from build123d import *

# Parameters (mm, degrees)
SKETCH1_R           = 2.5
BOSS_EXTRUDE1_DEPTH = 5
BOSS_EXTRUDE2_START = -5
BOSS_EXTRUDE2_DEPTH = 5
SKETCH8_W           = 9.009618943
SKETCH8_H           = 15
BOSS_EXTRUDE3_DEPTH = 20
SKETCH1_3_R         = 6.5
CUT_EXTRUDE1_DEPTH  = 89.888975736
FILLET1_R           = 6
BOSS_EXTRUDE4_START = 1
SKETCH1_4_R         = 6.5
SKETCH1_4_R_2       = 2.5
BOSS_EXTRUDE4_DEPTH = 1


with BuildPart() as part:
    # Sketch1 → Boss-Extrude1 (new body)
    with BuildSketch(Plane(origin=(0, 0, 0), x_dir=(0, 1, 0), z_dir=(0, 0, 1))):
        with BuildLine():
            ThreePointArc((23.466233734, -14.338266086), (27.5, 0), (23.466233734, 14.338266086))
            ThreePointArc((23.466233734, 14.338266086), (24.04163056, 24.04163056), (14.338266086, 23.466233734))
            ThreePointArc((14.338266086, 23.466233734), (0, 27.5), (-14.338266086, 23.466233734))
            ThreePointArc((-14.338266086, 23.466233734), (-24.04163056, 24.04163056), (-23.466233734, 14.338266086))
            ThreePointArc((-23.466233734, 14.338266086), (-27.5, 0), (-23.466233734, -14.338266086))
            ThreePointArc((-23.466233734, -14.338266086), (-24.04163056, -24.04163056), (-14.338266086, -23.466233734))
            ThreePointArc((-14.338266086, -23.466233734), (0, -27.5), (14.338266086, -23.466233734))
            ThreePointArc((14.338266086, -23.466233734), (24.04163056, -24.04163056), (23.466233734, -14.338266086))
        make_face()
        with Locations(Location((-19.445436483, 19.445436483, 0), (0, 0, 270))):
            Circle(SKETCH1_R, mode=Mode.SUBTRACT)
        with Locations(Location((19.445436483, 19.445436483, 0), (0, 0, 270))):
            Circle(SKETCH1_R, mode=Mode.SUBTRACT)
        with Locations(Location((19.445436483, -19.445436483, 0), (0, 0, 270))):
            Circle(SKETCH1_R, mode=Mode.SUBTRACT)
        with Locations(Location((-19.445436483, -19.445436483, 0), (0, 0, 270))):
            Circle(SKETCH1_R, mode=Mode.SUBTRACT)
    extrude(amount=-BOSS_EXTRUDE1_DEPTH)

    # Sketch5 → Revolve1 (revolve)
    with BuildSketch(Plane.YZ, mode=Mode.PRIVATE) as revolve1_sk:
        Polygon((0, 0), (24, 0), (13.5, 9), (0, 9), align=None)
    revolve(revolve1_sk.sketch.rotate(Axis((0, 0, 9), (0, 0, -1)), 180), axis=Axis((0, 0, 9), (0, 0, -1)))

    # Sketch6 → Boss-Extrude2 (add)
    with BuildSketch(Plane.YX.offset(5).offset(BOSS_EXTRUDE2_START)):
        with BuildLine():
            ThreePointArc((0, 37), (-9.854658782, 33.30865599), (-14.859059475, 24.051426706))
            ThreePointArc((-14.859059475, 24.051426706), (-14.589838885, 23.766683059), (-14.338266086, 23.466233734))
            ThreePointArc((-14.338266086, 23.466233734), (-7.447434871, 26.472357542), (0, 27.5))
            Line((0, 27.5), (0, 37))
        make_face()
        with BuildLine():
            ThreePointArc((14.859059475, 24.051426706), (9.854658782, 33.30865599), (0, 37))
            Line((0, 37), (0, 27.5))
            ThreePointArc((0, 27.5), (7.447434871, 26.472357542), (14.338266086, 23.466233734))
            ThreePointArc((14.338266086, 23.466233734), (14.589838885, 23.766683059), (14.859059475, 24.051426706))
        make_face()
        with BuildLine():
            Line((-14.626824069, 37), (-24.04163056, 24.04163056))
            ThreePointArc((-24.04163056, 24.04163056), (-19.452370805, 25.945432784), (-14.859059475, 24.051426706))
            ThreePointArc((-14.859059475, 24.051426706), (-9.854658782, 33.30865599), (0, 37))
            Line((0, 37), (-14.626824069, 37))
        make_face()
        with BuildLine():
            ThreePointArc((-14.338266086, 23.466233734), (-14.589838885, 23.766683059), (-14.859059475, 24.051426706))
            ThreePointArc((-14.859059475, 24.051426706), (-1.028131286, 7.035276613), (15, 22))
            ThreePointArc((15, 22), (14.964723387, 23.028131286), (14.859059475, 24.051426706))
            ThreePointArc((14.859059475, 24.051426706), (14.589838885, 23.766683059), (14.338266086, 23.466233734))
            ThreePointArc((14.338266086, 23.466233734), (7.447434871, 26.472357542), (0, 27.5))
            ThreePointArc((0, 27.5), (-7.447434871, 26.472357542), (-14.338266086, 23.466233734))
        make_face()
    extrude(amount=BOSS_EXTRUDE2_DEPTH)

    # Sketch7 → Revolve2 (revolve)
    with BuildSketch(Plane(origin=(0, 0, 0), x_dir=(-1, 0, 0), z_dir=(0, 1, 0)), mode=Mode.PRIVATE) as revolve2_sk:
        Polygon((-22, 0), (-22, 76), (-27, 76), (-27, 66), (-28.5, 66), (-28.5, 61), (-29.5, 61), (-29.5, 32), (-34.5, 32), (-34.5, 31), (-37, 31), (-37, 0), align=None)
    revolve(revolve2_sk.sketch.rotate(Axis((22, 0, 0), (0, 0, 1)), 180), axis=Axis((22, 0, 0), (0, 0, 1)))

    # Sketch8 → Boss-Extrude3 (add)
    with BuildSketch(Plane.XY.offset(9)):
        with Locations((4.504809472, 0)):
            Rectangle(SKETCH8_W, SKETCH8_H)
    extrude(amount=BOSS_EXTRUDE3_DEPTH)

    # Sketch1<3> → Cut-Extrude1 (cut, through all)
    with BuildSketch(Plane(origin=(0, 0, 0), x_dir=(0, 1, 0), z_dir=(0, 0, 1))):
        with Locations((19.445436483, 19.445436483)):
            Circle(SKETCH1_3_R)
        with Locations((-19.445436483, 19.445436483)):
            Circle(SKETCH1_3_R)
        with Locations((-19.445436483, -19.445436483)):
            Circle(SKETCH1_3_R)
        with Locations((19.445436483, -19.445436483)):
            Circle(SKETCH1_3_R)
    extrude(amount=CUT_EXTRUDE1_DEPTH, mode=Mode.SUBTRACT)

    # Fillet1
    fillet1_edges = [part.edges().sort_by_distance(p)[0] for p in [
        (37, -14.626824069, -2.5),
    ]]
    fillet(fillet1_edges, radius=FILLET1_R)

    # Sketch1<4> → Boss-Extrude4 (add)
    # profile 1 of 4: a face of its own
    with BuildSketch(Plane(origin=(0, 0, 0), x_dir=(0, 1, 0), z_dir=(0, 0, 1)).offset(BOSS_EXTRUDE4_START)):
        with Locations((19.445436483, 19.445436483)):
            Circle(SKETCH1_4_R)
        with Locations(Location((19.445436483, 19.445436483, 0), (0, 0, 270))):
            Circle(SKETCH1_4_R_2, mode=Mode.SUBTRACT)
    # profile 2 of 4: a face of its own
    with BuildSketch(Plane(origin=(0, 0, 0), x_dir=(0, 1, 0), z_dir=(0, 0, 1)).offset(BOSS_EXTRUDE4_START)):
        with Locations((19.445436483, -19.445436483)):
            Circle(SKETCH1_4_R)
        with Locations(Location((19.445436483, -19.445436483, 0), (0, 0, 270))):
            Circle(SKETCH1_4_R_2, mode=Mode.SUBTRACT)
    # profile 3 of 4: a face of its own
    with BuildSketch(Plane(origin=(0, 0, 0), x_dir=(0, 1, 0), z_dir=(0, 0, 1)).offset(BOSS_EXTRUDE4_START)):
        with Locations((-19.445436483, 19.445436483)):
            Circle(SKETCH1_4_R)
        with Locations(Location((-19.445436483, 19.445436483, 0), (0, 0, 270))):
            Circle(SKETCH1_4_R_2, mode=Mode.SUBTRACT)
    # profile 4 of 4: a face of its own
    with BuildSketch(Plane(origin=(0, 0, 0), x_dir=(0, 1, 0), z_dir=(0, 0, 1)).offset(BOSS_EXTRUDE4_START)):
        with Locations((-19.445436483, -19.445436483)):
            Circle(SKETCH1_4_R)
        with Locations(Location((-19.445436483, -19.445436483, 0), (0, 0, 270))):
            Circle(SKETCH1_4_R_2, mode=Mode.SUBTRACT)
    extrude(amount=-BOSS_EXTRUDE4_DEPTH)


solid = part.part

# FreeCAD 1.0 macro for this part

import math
import FreeCAD as App
import Part
import Sketcher

V = App.Vector
Q = App.Units.Quantity


def edges_at(feature, points):
    """Names of the edges that pass closest to the given points."""
    edges = feature.Shape.Edges
    near = lambda p: min(range(len(edges)), key=lambda i: edges[i].distToShape(Part.Vertex(*p))[0])
    return sorted({f"Edge{near(p) + 1}" for p in points})


def add_polygon(sketch, points):
    """Adds a closed chain of lines whose ends are joined by coincident constraints."""
    first, n = sketch.GeometryCount, len(points)
    for a, b in zip(points, points[1:] + points[:1]):
        sketch.addGeometry(Part.LineSegment(App.Vector(*a, 0), App.Vector(*b, 0)), False)
    for i in range(n):
        sketch.addConstraint(Sketcher.Constraint("Coincident", first + i, 2, first + (i + 1) % n, 1))

doc = App.newDocument("Part")
params = doc.addObject("Spreadsheet::Sheet", "Params")
for row, (alias, value) in enumerate([
    ("sketch1_diameter", "5 mm"),
    ("sketch1_radius", "27.5 mm"),
    ("sketch1_radius2", "6.5 mm"),
    ("pad1_length", "5 mm"),
    ("sketch2_width", "24 mm"),
    ("sketch2_height", "9 mm"),
    ("sketch2_width2", "13.5 mm"),
    ("revolution_angle", "360 deg"),
    ("sketch3_radius", "15 mm"),
    ("sketch3_radius2", "6.5 mm"),
    ("pad2_length", "5 mm"),
    ("sketch4_width", "5 mm"),
    ("sketch4_width2", "1 mm"),
    ("sketch4_width3", "15 mm"),
    ("sketch4_height", "76 mm"),
    ("sketch4_height2", "10 mm"),
    ("revolution2_angle", "360 deg"),
    ("sketch5_height", "15 mm"),
    ("pad3_length", "20 mm"),
    ("sketch6_diameter", "13 mm"),
    ("fillet_radius", "6 mm"),
    ("sketch7_diameter", "13 mm"),
    ("sketch7_diameter2", "5 mm"),
    ("pad4_length", "1 mm"),
], start=1):
    params.set(f"A{row}", alias)
    params.set(f"B{row}", "=" + value)
    params.setAlias(f"B{row}", alias)

body = doc.addObject("PartDesign::Body", "Body")

# Sketch on XY plane
sketch1 = doc.addObject("Sketcher::SketchObject", "Sketch")
body.addObject(sketch1)
sketch1.AttachmentSupport = (doc.XY_Plane, [""])
sketch1.MapMode = "FlatFace"
sketch1.addGeometry(Part.ArcOfCircle(Part.Circle(V(0, 0, 0), V(0, 0, 1), 27.5), math.radians(59), math.radians(121)), False)
sketch1.addGeometry(Part.ArcOfCircle(Part.Circle(V(-19.4, 19.4, 0), V(0, 0, 1), 6.5), math.radians(38), math.radians(232)), False)
sketch1.addGeometry(Part.ArcOfCircle(Part.Circle(V(0, 0, 0), V(0, 0, 1), 27.5), math.radians(149), math.radians(211)), False)
sketch1.addGeometry(Part.ArcOfCircle(Part.Circle(V(-19.4, -19.4, 0), V(0, 0, 1), 6.5), math.radians(128), math.radians(322)), False)
sketch1.addGeometry(Part.ArcOfCircle(Part.Circle(V(0, 0, 0), V(0, 0, 1), 27.5), math.radians(-121), math.radians(-59)), False)
sketch1.addGeometry(Part.ArcOfCircle(Part.Circle(V(19.4, -19.4, 0), V(0, 0, 1), 6.5), math.radians(-142), math.radians(52)), False)
sketch1.addGeometry(Part.ArcOfCircle(Part.Circle(V(0, 0, 0), V(0, 0, 1), 27.5), math.radians(-31), math.radians(31)), False)
sketch1.addGeometry(Part.ArcOfCircle(Part.Circle(V(19.4, 19.4, 0), V(0, 0, 1), 6.5), math.radians(-52), math.radians(142)), False)
sketch1.addGeometry(Part.Circle(V(19.4, -19.4, 0), V(0, 0, 1), 2.5), False)
sketch1.addGeometry(Part.Circle(V(19.4, 19.4, 0), V(0, 0, 1), 2.5), False)
sketch1.addGeometry(Part.Circle(V(-19.4, -19.4, 0), V(0, 0, 1), 2.5), False)
sketch1.addGeometry(Part.Circle(V(-19.4, 19.4, 0), V(0, 0, 1), 2.5), False)
sketch1.addConstraint(Sketcher.Constraint("Coincident", 0, 2, 1, 1))
sketch1.addConstraint(Sketcher.Constraint("Coincident", 1, 2, 2, 1))
sketch1.addConstraint(Sketcher.Constraint("Coincident", 2, 2, 3, 1))
sketch1.addConstraint(Sketcher.Constraint("Coincident", 3, 2, 4, 1))
sketch1.addConstraint(Sketcher.Constraint("Coincident", 4, 2, 5, 1))
sketch1.addConstraint(Sketcher.Constraint("Coincident", 5, 2, 6, 1))
sketch1.addConstraint(Sketcher.Constraint("Coincident", 6, 2, 7, 1))
sketch1.addConstraint(Sketcher.Constraint("Coincident", 7, 2, 0, 1))
sketch1.addConstraint(Sketcher.Constraint("Coincident", 0, 3, -1, 1))
sketch1.addConstraint(Sketcher.Constraint("Coincident", 2, 3, -1, 1))
sketch1.addConstraint(Sketcher.Constraint("Coincident", 4, 3, -1, 1))
sketch1.addConstraint(Sketcher.Constraint("Coincident", 6, 3, -1, 1))
sketch1.addConstraint(Sketcher.Constraint("Coincident", 8, 3, 5, 3))
sketch1.addConstraint(Sketcher.Constraint("Coincident", 9, 3, 7, 3))
sketch1.addConstraint(Sketcher.Constraint("Coincident", 10, 3, 3, 3))
sketch1.addConstraint(Sketcher.Constraint("Coincident", 11, 3, 1, 3))
sketch1.addConstraint(Sketcher.Constraint("Equal", 0, 2))
sketch1.addConstraint(Sketcher.Constraint("Equal", 1, 3))
sketch1.addConstraint(Sketcher.Constraint("Equal", 2, 4))
sketch1.addConstraint(Sketcher.Constraint("Equal", 3, 5))
sketch1.addConstraint(Sketcher.Constraint("Equal", 4, 6))
sketch1.addConstraint(Sketcher.Constraint("Equal", 5, 7))
sketch1.addConstraint(Sketcher.Constraint("Equal", 8, 9))
sketch1.addConstraint(Sketcher.Constraint("Equal", 9, 10))
sketch1.addConstraint(Sketcher.Constraint("Equal", 10, 11))
sketch1.addConstraint(Sketcher.Constraint("Symmetric", 1, 3, 5, 3, -1, 1))
sketch1.addConstraint(Sketcher.Constraint("Symmetric", 3, 3, 7, 3, -1, 1))
sketch1.addConstraint(Sketcher.Constraint("Symmetric", 3, 3, 5, 3, -2))
sketch1.addConstraint(Sketcher.Constraint("Diameter", 8, Q("5 mm")))
sketch1.addConstraint(Sketcher.Constraint("Radius", 0, Q("27.5 mm")))
sketch1.addConstraint(Sketcher.Constraint("Radius", 1, Q("6.5 mm")))
sketch1.addConstraint(Sketcher.Constraint("DistanceX", 1, 3, 0, 2, Q("5.10717 mm")))
sketch1.addConstraint(Sketcher.Constraint("DistanceY", 1, 2, 1, 3, Q("5.10717 mm")))
sketch1.setExpression("Constraints[28]", "Params.sketch1_diameter")
sketch1.setExpression("Constraints[29]", "Params.sketch1_radius")
sketch1.setExpression("Constraints[30]", "Params.sketch1_radius2")
pad1 = doc.addObject("PartDesign::Pad", "Pad")
body.addObject(pad1)
pad1.Profile = sketch1
pad1.setExpression("Length", "Params.pad1_length")
pad1.Reversed = True

# Sketch on YZ plane
sketch2 = doc.addObject("Sketcher::SketchObject", "Sketch001")
body.addObject(sketch2)
sketch2.AttachmentSupport = (doc.YZ_Plane, [""])
sketch2.MapMode = "FlatFace"
add_polygon(sketch2, [(0, 0), (24, 0), (14, 9), (0, 9)])  # lines 0-3
sketch2.addConstraint(Sketcher.Constraint("Horizontal", 0))
sketch2.addConstraint(Sketcher.Constraint("Horizontal", 2))
sketch2.addConstraint(Sketcher.Constraint("Vertical", 3))
sketch2.addConstraint(Sketcher.Constraint("Coincident", 3, 2, -1, 1))
sketch2.addConstraint(Sketcher.Constraint("DistanceX", 0, 1, 0, 2, Q("24 mm")))
sketch2.addConstraint(Sketcher.Constraint("DistanceY", 3, 2, 3, 1, Q("9 mm")))
sketch2.addConstraint(Sketcher.Constraint("DistanceX", 2, 2, 2, 1, Q("13.5 mm")))
sketch2.setExpression("Constraints[8]", "Params.sketch2_width")
sketch2.setExpression("Constraints[9]", "Params.sketch2_height")
sketch2.setExpression("Constraints[10]", "Params.sketch2_width2")
revolution = doc.addObject("PartDesign::Revolution", "Revolution")
body.addObject(revolution)
revolution.Profile = sketch2
revolution.ReferenceAxis = (sketch2, ["V_Axis"])
revolution.setExpression("Angle", "Params.revolution_angle")

# Sketch on XY plane
sketch3 = doc.addObject("Sketcher::SketchObject", "Sketch002")
body.addObject(sketch3)
sketch3.AttachmentSupport = (doc.XY_Plane, [""])
sketch3.MapMode = "FlatFace"
sketch3.addGeometry(Part.ArcOfCircle(Part.Circle(V(22, 0, 0), V(0, 0, 1), 15), math.radians(0), math.radians(82)), False)
sketch3.addGeometry(Part.LineSegment(V(37, 0, 0), V(37, -14.6, 0)), False)
sketch3.addGeometry(Part.LineSegment(V(37, -14.6, 0), V(24, -24, 0)), False)
sketch3.addGeometry(Part.ArcOfCircle(Part.Circle(V(19.4, -19.4, 0), V(0, 0, 1), 6.5), math.radians(-45), math.radians(45)), False)
sketch3.addGeometry(Part.ArcOfCircle(Part.Circle(V(22, 0, 0), V(0, 0, 1), 15), math.radians(90), math.radians(278)), False)
sketch3.addGeometry(Part.ArcOfCircle(Part.Circle(V(22, 0, 0), V(0, 0, 1), 15), math.radians(82.14), math.radians(90)), False)
sketch3.addConstraint(Sketcher.Constraint("Tangent", 0, 1, 1, 1))
sketch3.addConstraint(Sketcher.Constraint("Coincident", 1, 2, 2, 1))
sketch3.addConstraint(Sketcher.Constraint("Coincident", 2, 2, 3, 1))
sketch3.addConstraint(Sketcher.Constraint("Coincident", 3, 2, 4, 2))
sketch3.addConstraint(Sketcher.Constraint("Tangent", 4, 1, 5, 2))
sketch3.addConstraint(Sketcher.Constraint("Tangent", 5, 1, 0, 2))
sketch3.addConstraint(Sketcher.Constraint("Vertical", 1))
sketch3.addConstraint(Sketcher.Constraint("Coincident", 4, 3, 0, 3))
sketch3.addConstraint(Sketcher.Constraint("Symmetric", 3, 2, 5, 1, -1))
sketch3.addConstraint(Sketcher.Constraint("Vertical", 5, 3, 4, 1))
sketch3.addConstraint(Sketcher.Constraint("Radius", 0, Q("15 mm")))
sketch3.addConstraint(Sketcher.Constraint("Radius", 3, Q("6.5 mm")))
sketch3.addConstraint(Sketcher.Constraint("Angle", 2, Q("-144 deg")))
sketch3.addConstraint(Sketcher.Constraint("DistanceX", -1, 1, 0, 3, Q("22 mm")))
sketch3.addConstraint(Sketcher.Constraint("DistanceY", 1, 2, 1, 1, Q("14.626824 mm")))
sketch3.addConstraint(Sketcher.Constraint("DistanceX", -1, 1, 2, 2, Q("24.041631 mm")))
sketch3.addConstraint(Sketcher.Constraint("DistanceY", 3, 2, -1, 1, Q("14.859059 mm")))
sketch3.setExpression("Constraints[10]", "Params.sketch3_radius")
sketch3.setExpression("Constraints[11]", "Params.sketch3_radius2")
pad2 = doc.addObject("PartDesign::Pad", "Pad001")
body.addObject(pad2)
pad2.Profile = sketch3
pad2.setExpression("Length", "Params.pad2_length")
pad2.Reversed = True

# Sketch on XZ plane
sketch4 = doc.addObject("Sketcher::SketchObject", "Sketch003")
body.addObject(sketch4)
sketch4.AttachmentSupport = (doc.XZ_Plane, [""])
sketch4.MapMode = "FlatFace"
add_polygon(sketch4, [(22, 0), (22, 76), (27, 76), (27, 66), (28.5, 66), (28.5, 61), (29.5, 61), (29.5, 32), (34.5, 32), (34.5, 31), (37, 31), (37, 0)])  # lines 0-11
sketch4.addGeometry(Part.LineSegment(V(22, 0, 0), V(22, 76, 0)), True)  # axis
sketch4.addConstraint(Sketcher.Constraint("Vertical", 0))
sketch4.addConstraint(Sketcher.Constraint("Horizontal", 1))
sketch4.addConstraint(Sketcher.Constraint("Vertical", 2))
sketch4.addConstraint(Sketcher.Constraint("Horizontal", 3))
sketch4.addConstraint(Sketcher.Constraint("Vertical", 4))
sketch4.addConstraint(Sketcher.Constraint("Horizontal", 5))
sketch4.addConstraint(Sketcher.Constraint("Vertical", 6))
sketch4.addConstraint(Sketcher.Constraint("Horizontal", 7))
sketch4.addConstraint(Sketcher.Constraint("Vertical", 8))
sketch4.addConstraint(Sketcher.Constraint("Horizontal", 9))
sketch4.addConstraint(Sketcher.Constraint("Vertical", 10))
sketch4.addConstraint(Sketcher.Constraint("Horizontal", 11))
sketch4.addConstraint(Sketcher.Constraint("Vertical", 12))
sketch4.addConstraint(Sketcher.Constraint("Coincident", 12, 1, 11, 2))
sketch4.addConstraint(Sketcher.Constraint("PointOnObject", 10, 2, -1))
sketch4.addConstraint(Sketcher.Constraint("Horizontal", 1, 2, 12, 2))
sketch4.addConstraint(Sketcher.Constraint("Equal", 1, 7))
sketch4.addConstraint(Sketcher.Constraint("Equal", 7, 4))
sketch4.addConstraint(Sketcher.Constraint("Equal", 5, 8))
sketch4.addConstraint(Sketcher.Constraint("DistanceX", 1, 1, 1, 2, Q("5 mm")))
sketch4.addConstraint(Sketcher.Constraint("DistanceX", 5, 1, 5, 2, Q("1 mm")))
sketch4.addConstraint(Sketcher.Constraint("DistanceX", 11, 2, 11, 1, Q("15 mm")))
sketch4.addConstraint(Sketcher.Constraint("DistanceY", 0, 1, 0, 2, Q("76 mm")))
sketch4.addConstraint(Sketcher.Constraint("DistanceY", 2, 2, 2, 1, Q("10 mm")))
sketch4.addConstraint(Sketcher.Constraint("DistanceY", 6, 2, 6, 1, Q("29 mm")))
sketch4.addConstraint(Sketcher.Constraint("DistanceX", 3, 1, 3, 2, Q("1.5 mm")))
sketch4.addConstraint(Sketcher.Constraint("DistanceX", -1, 1, 0, 2, Q("22 mm")))
sketch4.setExpression("Constraints[31]", "Params.sketch4_width")
sketch4.setExpression("Constraints[32]", "Params.sketch4_width2")
sketch4.setExpression("Constraints[33]", "Params.sketch4_width3")
sketch4.setExpression("Constraints[34]", "Params.sketch4_height")
sketch4.setExpression("Constraints[35]", "Params.sketch4_height2")
revolution2 = doc.addObject("PartDesign::Revolution", "Revolution001")
body.addObject(revolution2)
revolution2.Profile = sketch4
revolution2.ReferenceAxis = (sketch4, ["Axis0"])
revolution2.setExpression("Angle", "Params.revolution2_angle")

# Sketch on XY plane
sketch5 = doc.addObject("Sketcher::SketchObject", "Sketch004")
body.addObject(sketch5)
sketch5.AttachmentSupport = (doc.XY_Plane, [""])
sketch5.MapMode = "FlatFace"
sketch5.AttachmentOffset = App.Placement(V(0, 0, 9), App.Rotation())
add_polygon(sketch5, [(0, 8), (0, -8), (9, -8), (9, 8)])  # lines 0-3
sketch5.addConstraint(Sketcher.Constraint("Vertical", 0))
sketch5.addConstraint(Sketcher.Constraint("Horizontal", 1))
sketch5.addConstraint(Sketcher.Constraint("Vertical", 2))
sketch5.addConstraint(Sketcher.Constraint("Horizontal", 3))
sketch5.addConstraint(Sketcher.Constraint("Symmetric", 0, 2, 3, 2, -1, 1))
sketch5.addConstraint(Sketcher.Constraint("DistanceY", 0, 2, 0, 1, Q("15 mm")))
sketch5.addConstraint(Sketcher.Constraint("DistanceX", 1, 1, 1, 2, Q("9.009619 mm")))
sketch5.setExpression("Constraints[9]", "Params.sketch5_height")
pad3 = doc.addObject("PartDesign::Pad", "Pad002")
body.addObject(pad3)
pad3.Profile = sketch5
pad3.setExpression("Length", "Params.pad3_length")

# Sketch on XY plane
sketch6 = doc.addObject("Sketcher::SketchObject", "Sketch005")
body.addObject(sketch6)
sketch6.AttachmentSupport = (doc.XY_Plane, [""])
sketch6.MapMode = "FlatFace"
sketch6.addGeometry(Part.Circle(V(-19, 19, 0), V(0, 0, 1), 6), False)
sketch6.addGeometry(Part.Circle(V(-19, -19, 0), V(0, 0, 1), 6), False)
sketch6.addGeometry(Part.Circle(V(19, -19, 0), V(0, 0, 1), 6), False)
sketch6.addGeometry(Part.Circle(V(19, 19, 0), V(0, 0, 1), 6), False)
sketch6.addConstraint(Sketcher.Constraint("Equal", 0, 1))
sketch6.addConstraint(Sketcher.Constraint("Equal", 1, 2))
sketch6.addConstraint(Sketcher.Constraint("Equal", 2, 3))
sketch6.addConstraint(Sketcher.Constraint("Symmetric", 0, 3, 2, 3, -1, 1))
sketch6.addConstraint(Sketcher.Constraint("Symmetric", 1, 3, 3, 3, -1, 1))
sketch6.addConstraint(Sketcher.Constraint("Symmetric", 1, 3, 2, 3, -2))
sketch6.addConstraint(Sketcher.Constraint("Diameter", 0, Q("13 mm")))
sketch6.addConstraint(Sketcher.Constraint("DistanceX", 0, 3, -1, 1, Q("19.445436 mm")))
sketch6.addConstraint(Sketcher.Constraint("DistanceY", -1, 1, 0, 3, Q("19.445436 mm")))
sketch6.setExpression("Constraints[6]", "Params.sketch6_diameter")
pocket1 = doc.addObject("PartDesign::Pocket", "Pocket")
body.addObject(pocket1)
pocket1.Profile = sketch6
pocket1.Type = "ThroughAll"
pocket1.Reversed = True
doc.recompute()

fillet = doc.addObject("PartDesign::Fillet", "Fillet")
body.addObject(fillet)
fillet.Base = (pocket1, edges_at(pocket1, [(37, -14.627, -2.5)]))
fillet.setExpression("Radius", "Params.fillet_radius")

# Sketch on XY plane
sketch7 = doc.addObject("Sketcher::SketchObject", "Sketch006")
body.addObject(sketch7)
sketch7.AttachmentSupport = (doc.XY_Plane, [""])
sketch7.MapMode = "FlatFace"
sketch7.AttachmentOffset = App.Placement(V(0, 0, 1), App.Rotation())
sketch7.addGeometry(Part.Circle(V(-19.4, 19.4, 0), V(0, 0, 1), 6.5), False)
sketch7.addGeometry(Part.Circle(V(-19.4, 19.4, 0), V(0, 0, 1), 2.5), False)
sketch7.addGeometry(Part.Circle(V(19.4, 19.4, 0), V(0, 0, 1), 6.5), False)
sketch7.addGeometry(Part.Circle(V(19.4, 19.4, 0), V(0, 0, 1), 2.5), False)
sketch7.addGeometry(Part.Circle(V(-19.4, -19.4, 0), V(0, 0, 1), 6.5), False)
sketch7.addGeometry(Part.Circle(V(-19.4, -19.4, 0), V(0, 0, 1), 2.5), False)
sketch7.addGeometry(Part.Circle(V(19.4, -19.4, 0), V(0, 0, 1), 6.5), False)
sketch7.addGeometry(Part.Circle(V(19.4, -19.4, 0), V(0, 0, 1), 2.5), False)
sketch7.addConstraint(Sketcher.Constraint("Coincident", 1, 3, 0, 3))
sketch7.addConstraint(Sketcher.Constraint("Coincident", 3, 3, 2, 3))
sketch7.addConstraint(Sketcher.Constraint("Coincident", 5, 3, 4, 3))
sketch7.addConstraint(Sketcher.Constraint("Coincident", 7, 3, 6, 3))
sketch7.addConstraint(Sketcher.Constraint("Equal", 0, 2))
sketch7.addConstraint(Sketcher.Constraint("Equal", 1, 3))
sketch7.addConstraint(Sketcher.Constraint("Equal", 2, 4))
sketch7.addConstraint(Sketcher.Constraint("Equal", 3, 5))
sketch7.addConstraint(Sketcher.Constraint("Equal", 4, 6))
sketch7.addConstraint(Sketcher.Constraint("Equal", 5, 7))
sketch7.addConstraint(Sketcher.Constraint("Symmetric", 2, 3, 4, 3, -1, 1))
sketch7.addConstraint(Sketcher.Constraint("Symmetric", 0, 3, 6, 3, -1, 1))
sketch7.addConstraint(Sketcher.Constraint("Symmetric", 0, 3, 2, 3, -2))
sketch7.addConstraint(Sketcher.Constraint("Diameter", 0, Q("13 mm")))
sketch7.addConstraint(Sketcher.Constraint("Diameter", 1, Q("5 mm")))
sketch7.addConstraint(Sketcher.Constraint("DistanceX", 0, 3, -1, 1, Q("19.445436 mm")))
sketch7.addConstraint(Sketcher.Constraint("DistanceY", -1, 1, 0, 3, Q("19.445436 mm")))
sketch7.setExpression("Constraints[13]", "Params.sketch7_diameter")
sketch7.setExpression("Constraints[14]", "Params.sketch7_diameter2")
pad4 = doc.addObject("PartDesign::Pad", "Pad003")
body.addObject(pad4)
pad4.Profile = sketch7
pad4.setExpression("Length", "Params.pad4_length")
pad4.Reversed = True

doc.recompute()
